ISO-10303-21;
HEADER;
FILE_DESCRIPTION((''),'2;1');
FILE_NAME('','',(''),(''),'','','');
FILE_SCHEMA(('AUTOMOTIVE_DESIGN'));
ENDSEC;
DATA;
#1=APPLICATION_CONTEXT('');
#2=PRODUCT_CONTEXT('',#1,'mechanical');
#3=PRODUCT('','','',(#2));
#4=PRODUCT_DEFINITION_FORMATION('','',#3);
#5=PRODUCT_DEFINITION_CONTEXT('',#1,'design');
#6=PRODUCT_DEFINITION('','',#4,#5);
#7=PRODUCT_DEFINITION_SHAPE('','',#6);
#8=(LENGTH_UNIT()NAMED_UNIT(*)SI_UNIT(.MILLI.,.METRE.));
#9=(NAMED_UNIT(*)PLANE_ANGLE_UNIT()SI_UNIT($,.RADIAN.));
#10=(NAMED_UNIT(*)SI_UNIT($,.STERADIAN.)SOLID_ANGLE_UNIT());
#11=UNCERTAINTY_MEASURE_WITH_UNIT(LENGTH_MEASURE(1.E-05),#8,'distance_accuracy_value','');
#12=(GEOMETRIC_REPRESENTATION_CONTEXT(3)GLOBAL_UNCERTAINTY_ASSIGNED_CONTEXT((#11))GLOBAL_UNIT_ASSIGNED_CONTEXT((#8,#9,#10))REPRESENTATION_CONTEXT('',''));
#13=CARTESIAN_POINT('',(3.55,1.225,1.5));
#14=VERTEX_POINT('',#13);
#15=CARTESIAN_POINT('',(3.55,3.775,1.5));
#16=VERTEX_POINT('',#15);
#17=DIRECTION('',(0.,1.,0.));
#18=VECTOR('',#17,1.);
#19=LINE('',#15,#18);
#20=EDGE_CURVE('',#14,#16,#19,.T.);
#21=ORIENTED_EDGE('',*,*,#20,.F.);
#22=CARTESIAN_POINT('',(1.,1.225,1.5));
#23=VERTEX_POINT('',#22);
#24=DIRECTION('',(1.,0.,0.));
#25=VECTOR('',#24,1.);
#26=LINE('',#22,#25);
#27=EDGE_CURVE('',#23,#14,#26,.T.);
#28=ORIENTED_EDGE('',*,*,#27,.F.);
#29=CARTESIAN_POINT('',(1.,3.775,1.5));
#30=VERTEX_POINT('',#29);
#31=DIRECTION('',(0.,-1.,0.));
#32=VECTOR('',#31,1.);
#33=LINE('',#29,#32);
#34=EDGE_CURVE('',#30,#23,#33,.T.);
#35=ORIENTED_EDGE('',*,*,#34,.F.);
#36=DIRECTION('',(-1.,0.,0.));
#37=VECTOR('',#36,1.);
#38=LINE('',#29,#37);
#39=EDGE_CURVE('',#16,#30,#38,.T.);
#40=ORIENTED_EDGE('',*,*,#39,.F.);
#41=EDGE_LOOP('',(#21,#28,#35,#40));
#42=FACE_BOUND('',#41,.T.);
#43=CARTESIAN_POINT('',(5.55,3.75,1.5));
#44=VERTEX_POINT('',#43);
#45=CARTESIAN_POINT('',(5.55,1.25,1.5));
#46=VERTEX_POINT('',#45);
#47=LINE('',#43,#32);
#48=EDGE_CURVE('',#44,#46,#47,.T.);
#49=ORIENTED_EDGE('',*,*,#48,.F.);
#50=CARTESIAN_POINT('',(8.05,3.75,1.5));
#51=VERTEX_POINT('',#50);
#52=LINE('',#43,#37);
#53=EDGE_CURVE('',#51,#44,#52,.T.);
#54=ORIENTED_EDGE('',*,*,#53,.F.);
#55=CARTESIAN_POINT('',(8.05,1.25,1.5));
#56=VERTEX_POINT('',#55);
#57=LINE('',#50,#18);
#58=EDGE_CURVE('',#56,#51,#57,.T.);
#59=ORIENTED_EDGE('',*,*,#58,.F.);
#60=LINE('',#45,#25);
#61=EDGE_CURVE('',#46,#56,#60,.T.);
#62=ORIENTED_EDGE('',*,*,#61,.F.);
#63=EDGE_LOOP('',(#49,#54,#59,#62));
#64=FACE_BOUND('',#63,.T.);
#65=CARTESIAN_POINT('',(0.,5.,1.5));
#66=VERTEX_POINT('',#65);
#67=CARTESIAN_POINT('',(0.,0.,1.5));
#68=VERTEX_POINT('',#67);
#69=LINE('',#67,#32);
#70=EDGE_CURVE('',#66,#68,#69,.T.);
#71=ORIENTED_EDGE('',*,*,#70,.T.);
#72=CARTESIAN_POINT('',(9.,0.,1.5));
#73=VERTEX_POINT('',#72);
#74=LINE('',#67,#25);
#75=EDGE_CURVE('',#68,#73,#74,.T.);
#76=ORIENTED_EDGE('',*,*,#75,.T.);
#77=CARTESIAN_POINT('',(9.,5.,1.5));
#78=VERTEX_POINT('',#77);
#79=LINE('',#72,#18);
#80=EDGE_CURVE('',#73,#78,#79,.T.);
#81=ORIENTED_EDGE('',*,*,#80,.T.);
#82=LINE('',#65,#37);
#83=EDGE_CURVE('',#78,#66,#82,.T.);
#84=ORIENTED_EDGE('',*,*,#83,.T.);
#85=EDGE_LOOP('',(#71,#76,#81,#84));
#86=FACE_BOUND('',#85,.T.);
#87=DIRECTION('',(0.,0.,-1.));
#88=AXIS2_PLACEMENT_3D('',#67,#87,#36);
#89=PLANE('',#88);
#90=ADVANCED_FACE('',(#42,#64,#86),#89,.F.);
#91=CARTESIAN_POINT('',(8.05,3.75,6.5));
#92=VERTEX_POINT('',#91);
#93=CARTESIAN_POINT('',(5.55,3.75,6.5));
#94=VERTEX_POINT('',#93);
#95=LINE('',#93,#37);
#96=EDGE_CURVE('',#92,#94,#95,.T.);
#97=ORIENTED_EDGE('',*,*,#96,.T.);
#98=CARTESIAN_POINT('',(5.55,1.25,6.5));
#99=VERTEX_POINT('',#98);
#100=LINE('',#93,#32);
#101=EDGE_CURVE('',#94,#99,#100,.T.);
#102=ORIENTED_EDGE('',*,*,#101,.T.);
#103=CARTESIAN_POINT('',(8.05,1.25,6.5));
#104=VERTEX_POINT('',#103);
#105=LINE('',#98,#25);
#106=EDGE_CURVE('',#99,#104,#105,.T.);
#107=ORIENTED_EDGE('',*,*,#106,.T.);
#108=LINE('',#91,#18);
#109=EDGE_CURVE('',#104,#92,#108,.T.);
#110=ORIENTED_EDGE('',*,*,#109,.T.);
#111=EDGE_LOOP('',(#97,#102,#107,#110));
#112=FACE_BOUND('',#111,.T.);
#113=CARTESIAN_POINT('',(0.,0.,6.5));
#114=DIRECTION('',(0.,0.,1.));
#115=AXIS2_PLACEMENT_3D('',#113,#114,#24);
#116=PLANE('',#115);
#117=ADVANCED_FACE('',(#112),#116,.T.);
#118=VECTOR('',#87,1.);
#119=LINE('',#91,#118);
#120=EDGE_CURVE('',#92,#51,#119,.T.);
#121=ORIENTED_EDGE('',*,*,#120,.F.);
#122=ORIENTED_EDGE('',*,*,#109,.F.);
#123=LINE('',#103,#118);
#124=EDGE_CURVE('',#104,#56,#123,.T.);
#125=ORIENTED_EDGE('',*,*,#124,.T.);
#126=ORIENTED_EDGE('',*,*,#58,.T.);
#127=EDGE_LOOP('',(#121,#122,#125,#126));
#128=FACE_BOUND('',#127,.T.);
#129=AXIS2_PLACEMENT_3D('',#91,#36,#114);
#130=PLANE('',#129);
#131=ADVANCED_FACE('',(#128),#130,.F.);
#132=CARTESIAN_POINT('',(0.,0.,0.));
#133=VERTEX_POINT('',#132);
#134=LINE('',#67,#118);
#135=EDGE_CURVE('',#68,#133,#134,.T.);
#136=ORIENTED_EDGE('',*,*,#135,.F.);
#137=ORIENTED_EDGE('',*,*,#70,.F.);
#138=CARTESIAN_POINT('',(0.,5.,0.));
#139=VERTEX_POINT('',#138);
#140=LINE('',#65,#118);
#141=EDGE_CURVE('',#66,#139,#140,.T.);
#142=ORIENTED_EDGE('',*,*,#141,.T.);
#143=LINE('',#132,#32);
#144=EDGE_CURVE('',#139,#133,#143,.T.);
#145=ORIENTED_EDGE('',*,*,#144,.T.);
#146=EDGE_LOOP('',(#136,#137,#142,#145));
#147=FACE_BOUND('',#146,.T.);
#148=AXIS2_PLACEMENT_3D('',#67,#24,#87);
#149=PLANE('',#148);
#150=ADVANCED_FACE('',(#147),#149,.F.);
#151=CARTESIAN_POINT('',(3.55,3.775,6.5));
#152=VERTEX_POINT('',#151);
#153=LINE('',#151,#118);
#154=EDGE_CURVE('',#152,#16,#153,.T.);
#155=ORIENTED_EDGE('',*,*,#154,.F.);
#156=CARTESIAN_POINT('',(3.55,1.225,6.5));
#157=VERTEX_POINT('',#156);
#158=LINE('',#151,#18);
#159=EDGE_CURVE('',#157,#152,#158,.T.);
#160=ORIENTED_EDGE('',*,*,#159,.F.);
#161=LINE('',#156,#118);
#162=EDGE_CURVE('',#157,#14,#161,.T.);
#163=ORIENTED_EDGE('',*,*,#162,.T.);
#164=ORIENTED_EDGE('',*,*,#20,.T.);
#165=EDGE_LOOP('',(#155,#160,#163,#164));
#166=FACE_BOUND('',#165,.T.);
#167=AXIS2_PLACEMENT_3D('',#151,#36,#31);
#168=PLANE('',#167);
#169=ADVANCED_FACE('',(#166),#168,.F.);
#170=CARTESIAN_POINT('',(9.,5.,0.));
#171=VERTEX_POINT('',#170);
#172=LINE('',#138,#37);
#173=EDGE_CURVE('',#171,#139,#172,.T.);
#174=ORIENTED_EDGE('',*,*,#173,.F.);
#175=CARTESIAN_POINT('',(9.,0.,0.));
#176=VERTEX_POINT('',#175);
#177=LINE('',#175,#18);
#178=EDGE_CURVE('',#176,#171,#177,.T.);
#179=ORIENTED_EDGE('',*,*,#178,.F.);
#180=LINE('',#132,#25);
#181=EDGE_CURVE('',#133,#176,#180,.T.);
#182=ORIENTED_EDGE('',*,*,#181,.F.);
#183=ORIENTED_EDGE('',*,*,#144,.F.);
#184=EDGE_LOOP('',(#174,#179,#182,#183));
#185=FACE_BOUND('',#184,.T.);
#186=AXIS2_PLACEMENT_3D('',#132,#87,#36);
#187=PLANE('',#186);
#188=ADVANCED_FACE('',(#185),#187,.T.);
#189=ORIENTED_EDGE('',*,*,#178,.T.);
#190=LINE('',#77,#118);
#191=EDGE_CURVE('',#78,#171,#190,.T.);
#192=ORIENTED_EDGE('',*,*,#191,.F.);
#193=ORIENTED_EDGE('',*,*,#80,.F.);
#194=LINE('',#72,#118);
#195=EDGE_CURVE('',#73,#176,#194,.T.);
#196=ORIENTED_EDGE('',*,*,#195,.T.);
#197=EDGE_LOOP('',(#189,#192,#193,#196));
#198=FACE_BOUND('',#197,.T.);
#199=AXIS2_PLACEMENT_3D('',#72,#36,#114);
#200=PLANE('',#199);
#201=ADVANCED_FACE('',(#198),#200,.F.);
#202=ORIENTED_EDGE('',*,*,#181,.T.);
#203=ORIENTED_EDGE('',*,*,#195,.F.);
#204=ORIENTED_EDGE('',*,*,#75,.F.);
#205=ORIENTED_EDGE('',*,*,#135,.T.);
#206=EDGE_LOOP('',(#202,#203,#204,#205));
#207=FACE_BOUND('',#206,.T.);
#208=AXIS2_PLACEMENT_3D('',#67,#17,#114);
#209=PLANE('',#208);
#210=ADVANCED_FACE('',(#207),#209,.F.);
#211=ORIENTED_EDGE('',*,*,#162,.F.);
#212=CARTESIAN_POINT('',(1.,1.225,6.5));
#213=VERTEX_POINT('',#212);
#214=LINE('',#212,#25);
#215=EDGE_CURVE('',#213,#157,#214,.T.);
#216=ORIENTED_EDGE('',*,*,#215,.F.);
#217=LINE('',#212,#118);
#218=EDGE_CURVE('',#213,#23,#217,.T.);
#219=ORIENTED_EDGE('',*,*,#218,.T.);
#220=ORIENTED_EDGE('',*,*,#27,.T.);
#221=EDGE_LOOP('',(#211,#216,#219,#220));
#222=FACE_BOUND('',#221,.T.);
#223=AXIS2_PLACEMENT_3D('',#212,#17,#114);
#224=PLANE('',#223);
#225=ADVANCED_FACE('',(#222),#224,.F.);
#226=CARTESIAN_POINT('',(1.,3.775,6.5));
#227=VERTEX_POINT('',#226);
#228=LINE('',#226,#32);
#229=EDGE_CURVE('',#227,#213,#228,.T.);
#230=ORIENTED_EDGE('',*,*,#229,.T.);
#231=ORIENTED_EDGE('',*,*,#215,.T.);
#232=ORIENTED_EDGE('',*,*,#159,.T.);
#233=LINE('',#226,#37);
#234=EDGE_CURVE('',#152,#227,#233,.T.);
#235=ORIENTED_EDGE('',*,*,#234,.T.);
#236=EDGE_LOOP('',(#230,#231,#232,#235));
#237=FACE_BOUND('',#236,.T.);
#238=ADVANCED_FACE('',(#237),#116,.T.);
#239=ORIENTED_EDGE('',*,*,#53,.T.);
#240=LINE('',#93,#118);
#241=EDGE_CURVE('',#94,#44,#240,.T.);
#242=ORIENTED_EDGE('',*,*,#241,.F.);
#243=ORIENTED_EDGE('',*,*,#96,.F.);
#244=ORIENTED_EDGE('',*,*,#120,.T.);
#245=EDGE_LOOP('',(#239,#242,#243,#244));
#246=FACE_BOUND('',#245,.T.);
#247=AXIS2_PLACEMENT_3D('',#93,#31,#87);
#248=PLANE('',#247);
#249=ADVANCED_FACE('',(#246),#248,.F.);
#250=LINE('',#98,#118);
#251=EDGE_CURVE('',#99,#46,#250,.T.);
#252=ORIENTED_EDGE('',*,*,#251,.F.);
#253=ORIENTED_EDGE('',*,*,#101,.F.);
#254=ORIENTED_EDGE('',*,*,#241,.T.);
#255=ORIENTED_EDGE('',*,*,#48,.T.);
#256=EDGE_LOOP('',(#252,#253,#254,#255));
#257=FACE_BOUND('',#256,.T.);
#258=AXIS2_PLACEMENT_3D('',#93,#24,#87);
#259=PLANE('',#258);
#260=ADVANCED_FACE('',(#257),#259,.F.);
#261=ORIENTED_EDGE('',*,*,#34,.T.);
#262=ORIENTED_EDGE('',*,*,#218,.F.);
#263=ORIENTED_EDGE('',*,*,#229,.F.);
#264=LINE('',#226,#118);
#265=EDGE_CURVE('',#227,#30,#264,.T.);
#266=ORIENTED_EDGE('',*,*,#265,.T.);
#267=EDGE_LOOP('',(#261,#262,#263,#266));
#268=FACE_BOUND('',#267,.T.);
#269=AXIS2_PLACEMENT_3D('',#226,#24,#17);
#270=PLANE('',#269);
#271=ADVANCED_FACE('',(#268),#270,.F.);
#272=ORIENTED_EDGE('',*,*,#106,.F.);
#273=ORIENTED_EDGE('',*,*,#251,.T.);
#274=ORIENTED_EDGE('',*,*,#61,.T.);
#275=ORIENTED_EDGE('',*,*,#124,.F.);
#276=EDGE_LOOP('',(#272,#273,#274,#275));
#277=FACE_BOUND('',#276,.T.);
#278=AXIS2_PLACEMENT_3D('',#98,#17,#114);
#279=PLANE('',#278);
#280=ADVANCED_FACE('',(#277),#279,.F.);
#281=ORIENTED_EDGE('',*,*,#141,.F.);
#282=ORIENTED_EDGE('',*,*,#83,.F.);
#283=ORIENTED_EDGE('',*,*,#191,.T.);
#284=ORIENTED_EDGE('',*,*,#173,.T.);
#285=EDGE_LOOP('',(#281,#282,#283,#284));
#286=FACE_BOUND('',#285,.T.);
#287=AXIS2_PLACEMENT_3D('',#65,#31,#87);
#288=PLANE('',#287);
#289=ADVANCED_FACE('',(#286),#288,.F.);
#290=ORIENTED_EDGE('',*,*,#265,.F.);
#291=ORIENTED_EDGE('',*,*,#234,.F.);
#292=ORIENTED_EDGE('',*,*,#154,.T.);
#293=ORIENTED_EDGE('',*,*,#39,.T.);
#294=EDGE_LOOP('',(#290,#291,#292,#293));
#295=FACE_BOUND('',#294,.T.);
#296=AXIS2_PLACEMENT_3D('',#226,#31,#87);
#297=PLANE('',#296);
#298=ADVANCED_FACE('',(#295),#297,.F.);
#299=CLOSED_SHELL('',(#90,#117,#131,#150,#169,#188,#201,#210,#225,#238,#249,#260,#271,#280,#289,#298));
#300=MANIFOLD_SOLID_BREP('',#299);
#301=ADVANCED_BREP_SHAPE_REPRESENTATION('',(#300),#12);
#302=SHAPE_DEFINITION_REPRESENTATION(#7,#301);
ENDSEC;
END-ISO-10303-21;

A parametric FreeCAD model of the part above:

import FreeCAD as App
import Part
import Sketcher

V = App.Vector
Q = App.Units.Quantity


def add_polygon(sketch, points):
    """Adds a closed chain of lines whose ends are joined by coincident constraints."""
    first, n = sketch.GeometryCount, len(points)
    for a, b in zip(points, points[1:] + points[:1]):
        sketch.addGeometry(Part.LineSegment(App.Vector(*a, 0), App.Vector(*b, 0)), False)
    for i in range(n):
        sketch.addConstraint(Sketcher.Constraint("Coincident", first + i, 2, first + (i + 1) % n, 1))

doc = App.newDocument("Part")
body = doc.addObject("PartDesign::Body", "Body")

sketch1 = body.newObject("Sketcher::SketchObject", "Sketch")
sketch1.AttachmentSupport = (doc.getObject("XY_Plane"), [""])
sketch1.MapMode = "FlatFace"
add_polygon(sketch1, [(0, 5), (0, 0), (9, 0), (9, 5)])
sketch1.addConstraint([
    Sketcher.Constraint("Vertical", 0),
    Sketcher.Constraint("Horizontal", 1),
    Sketcher.Constraint("Vertical", 2),
    Sketcher.Constraint("Horizontal", 3),
    Sketcher.Constraint("Coincident", 0, 2, -1, 1),
    Sketcher.Constraint("DistanceX", 1, 1, 1, 2, Q("9 mm")),
    Sketcher.Constraint("DistanceY", 0, 2, 0, 1, Q("5 mm")),
])
pad1 = body.newObject("PartDesign::Pad", "Pad")
pad1.Profile = sketch1
pad1.Length = 1.5

sketch2 = body.newObject("Sketcher::SketchObject", "Sketch001")
sketch2.AttachmentSupport = (doc.getObject("XY_Plane"), [""])
sketch2.MapMode = "FlatFace"
sketch2.AttachmentOffset = App.Placement(V(0, 0, 1.5), App.Rotation())
add_polygon(sketch2, [(1, 3.8), (1, 1.2), (3.5, 1.2), (3.5, 3.8)])
add_polygon(sketch2, [(5.5, 3.8), (5.5, 1.2), (8.1, 1.2), (8.1, 3.8)])
sketch2.addConstraint([
    Sketcher.Constraint("Vertical", 0),
    Sketcher.Constraint("Horizontal", 1),
    Sketcher.Constraint("Vertical", 2),
    Sketcher.Constraint("Horizontal", 3),
    Sketcher.Constraint("Vertical", 4),
    Sketcher.Constraint("Horizontal", 5),
    Sketcher.Constraint("Vertical", 6),
    Sketcher.Constraint("Horizontal", 7),
    Sketcher.Constraint("Equal", 3, 0),
    Sketcher.Constraint("Equal", 7, 4),
    Sketcher.Constraint("DistanceX", 5, 1, 5, 2, Q("2.5 mm")),
    Sketcher.Constraint("DistanceX", -1, 1, 0, 2, Q("1 mm")),
    Sketcher.Constraint("DistanceX", 1, 2, 4, 2, Q("2 mm")),
    Sketcher.Constraint("DistanceX", 1, 1, 1, 2, Q("2.55 mm")),
    Sketcher.Constraint("DistanceY", -1, 1, 4, 2, Q("1.25 mm")),
    Sketcher.Constraint("DistanceY", -1, 1, 0, 2, Q("1.225 mm")),
])
pad2 = body.newObject("PartDesign::Pad", "Pad001")
pad2.Profile = sketch2
pad2.Length = 5

doc.recompute()
